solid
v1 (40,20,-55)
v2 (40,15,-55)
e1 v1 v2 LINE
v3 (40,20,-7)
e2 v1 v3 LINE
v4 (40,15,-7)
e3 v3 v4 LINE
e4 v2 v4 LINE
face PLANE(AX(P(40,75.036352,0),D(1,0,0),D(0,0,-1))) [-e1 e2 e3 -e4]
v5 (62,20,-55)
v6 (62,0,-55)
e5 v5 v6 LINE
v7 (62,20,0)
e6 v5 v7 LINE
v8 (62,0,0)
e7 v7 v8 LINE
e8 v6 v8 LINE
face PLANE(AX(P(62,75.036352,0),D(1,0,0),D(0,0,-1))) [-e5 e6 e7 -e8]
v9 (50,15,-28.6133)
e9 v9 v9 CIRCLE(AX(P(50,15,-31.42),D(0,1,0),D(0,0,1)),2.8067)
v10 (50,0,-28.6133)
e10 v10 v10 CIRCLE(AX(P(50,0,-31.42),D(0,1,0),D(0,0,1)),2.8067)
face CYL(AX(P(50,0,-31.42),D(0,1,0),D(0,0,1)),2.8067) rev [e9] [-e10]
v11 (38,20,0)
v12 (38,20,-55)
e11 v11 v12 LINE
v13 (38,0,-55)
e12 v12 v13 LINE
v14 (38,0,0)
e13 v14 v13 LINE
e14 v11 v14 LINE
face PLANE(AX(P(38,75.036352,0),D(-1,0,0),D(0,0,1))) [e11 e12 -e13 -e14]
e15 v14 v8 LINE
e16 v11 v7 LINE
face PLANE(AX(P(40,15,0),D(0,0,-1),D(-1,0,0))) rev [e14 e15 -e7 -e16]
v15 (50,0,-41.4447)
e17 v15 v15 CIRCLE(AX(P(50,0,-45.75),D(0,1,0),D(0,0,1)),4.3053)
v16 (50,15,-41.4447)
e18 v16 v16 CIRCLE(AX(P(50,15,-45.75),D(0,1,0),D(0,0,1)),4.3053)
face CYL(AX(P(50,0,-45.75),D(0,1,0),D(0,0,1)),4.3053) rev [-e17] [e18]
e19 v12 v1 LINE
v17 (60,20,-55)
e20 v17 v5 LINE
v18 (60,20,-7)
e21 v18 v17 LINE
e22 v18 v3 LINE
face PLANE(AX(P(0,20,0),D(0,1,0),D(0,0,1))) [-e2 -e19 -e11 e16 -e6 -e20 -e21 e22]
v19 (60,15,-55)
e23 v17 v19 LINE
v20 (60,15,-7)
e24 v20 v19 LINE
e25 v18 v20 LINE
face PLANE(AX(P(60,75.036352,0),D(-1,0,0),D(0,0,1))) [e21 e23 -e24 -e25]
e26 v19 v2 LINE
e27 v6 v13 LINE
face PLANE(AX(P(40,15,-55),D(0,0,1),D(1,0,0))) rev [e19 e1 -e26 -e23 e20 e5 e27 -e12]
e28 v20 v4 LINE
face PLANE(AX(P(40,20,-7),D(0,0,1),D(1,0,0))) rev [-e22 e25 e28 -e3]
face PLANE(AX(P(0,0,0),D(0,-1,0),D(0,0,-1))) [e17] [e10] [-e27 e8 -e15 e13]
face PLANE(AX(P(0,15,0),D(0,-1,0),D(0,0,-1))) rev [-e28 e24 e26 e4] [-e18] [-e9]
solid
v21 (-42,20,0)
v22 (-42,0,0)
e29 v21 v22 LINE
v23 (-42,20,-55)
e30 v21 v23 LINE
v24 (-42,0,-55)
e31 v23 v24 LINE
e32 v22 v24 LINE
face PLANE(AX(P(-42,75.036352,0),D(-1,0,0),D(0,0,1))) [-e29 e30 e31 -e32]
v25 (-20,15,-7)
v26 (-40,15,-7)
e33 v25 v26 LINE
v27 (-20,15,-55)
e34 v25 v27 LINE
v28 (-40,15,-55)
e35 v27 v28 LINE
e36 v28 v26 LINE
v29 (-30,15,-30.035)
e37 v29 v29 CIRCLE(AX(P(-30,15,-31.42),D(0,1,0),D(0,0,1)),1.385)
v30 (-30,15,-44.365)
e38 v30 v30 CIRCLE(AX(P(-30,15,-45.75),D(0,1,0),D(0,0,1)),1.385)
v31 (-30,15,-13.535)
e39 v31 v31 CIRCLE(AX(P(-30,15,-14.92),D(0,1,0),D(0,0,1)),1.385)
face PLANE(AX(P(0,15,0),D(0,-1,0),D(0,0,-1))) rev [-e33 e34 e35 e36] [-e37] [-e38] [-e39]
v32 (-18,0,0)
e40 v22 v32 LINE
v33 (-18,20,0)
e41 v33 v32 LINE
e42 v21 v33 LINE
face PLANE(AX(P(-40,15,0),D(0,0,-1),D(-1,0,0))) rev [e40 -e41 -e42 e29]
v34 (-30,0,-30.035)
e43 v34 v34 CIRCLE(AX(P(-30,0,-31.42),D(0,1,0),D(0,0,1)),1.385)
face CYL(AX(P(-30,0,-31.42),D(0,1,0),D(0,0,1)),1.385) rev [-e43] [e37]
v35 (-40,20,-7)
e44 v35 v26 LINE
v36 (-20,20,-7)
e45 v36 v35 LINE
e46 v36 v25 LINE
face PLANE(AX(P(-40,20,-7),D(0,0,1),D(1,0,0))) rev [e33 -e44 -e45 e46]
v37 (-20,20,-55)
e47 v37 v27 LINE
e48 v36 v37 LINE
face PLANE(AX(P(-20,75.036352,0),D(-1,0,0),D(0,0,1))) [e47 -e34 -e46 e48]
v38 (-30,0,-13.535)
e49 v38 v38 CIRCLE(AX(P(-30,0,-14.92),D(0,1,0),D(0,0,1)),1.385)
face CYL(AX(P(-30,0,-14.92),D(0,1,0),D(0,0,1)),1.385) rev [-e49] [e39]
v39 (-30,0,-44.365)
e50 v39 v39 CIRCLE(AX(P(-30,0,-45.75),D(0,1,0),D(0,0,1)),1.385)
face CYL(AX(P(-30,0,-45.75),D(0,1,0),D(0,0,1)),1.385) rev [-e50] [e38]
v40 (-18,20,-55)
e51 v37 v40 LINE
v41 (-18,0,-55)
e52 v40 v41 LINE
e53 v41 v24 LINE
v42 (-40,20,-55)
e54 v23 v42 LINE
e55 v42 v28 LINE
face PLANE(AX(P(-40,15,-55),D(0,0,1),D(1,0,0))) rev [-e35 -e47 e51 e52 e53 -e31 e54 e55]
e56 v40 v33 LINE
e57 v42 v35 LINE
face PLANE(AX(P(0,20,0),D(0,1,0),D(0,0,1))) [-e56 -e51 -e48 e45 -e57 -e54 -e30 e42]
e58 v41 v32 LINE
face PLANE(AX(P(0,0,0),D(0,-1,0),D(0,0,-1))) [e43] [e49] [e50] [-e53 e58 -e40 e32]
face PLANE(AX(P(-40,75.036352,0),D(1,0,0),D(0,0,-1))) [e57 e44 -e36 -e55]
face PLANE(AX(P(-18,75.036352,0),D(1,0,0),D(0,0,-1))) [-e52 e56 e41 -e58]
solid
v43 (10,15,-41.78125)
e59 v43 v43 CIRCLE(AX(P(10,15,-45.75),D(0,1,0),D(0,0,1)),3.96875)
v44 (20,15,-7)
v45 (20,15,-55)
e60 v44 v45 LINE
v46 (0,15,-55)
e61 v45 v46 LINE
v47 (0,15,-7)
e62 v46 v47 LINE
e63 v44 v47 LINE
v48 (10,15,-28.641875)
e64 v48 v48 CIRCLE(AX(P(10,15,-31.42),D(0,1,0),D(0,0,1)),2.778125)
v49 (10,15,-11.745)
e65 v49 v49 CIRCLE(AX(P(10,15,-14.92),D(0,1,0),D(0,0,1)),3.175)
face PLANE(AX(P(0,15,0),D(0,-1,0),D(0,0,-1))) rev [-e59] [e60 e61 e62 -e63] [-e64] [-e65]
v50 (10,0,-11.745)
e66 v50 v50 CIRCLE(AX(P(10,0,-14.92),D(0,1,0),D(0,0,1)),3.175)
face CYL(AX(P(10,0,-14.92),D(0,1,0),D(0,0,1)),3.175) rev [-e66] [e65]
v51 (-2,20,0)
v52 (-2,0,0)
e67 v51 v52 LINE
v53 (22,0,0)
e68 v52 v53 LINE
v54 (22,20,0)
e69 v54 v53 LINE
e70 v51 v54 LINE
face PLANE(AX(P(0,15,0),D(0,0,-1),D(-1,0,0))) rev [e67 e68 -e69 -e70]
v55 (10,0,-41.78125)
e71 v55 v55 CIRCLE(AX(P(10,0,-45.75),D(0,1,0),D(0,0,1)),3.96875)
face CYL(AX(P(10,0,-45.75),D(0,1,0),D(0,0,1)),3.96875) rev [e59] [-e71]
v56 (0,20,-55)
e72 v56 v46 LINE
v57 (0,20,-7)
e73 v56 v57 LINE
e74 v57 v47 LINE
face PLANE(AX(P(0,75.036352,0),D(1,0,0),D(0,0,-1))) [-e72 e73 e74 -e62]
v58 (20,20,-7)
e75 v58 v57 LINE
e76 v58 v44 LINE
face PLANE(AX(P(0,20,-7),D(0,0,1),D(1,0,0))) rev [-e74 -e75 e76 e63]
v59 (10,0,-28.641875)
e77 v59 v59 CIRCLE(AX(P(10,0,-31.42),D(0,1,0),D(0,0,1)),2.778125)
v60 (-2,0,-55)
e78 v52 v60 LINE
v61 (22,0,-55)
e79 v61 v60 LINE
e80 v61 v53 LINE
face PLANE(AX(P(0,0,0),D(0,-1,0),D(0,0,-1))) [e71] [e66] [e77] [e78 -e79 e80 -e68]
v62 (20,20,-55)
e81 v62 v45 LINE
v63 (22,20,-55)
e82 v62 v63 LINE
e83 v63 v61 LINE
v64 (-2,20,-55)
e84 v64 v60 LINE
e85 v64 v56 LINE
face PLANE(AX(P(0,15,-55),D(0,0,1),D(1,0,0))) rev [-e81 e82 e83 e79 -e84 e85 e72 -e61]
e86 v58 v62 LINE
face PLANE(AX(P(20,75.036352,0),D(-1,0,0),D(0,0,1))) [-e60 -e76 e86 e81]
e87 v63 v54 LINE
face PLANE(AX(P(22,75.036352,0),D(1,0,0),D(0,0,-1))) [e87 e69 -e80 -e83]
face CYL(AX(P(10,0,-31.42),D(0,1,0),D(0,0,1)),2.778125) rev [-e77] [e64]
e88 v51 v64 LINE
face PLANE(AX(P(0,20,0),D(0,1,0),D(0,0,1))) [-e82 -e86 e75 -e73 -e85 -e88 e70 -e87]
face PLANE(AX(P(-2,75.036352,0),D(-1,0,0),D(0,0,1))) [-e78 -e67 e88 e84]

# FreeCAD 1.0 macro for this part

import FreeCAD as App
import Part
import Sketcher


def add_polygon(sketch, points):
    """Adds a closed chain of lines whose ends are joined by coincident constraints."""
    first, n = sketch.GeometryCount, len(points)
    for a, b in zip(points, points[1:] + points[:1]):
        sketch.addGeometry(Part.LineSegment(App.Vector(*a, 0), App.Vector(*b, 0)), False)
    for i in range(n):
        sketch.addConstraint(Sketcher.Constraint("Coincident", first + i, 2, first + (i + 1) % n, 1))

doc = App.newDocument("Part")
params = doc.addObject("Spreadsheet::Sheet", "Params")
for row, (alias, value) in enumerate([
    ("sketch1_width", "20 mm"),
    ("sketch1_height", "55 mm"),
    ("pad1_length", "15 mm"),
    ("sketch2_width", "20 mm"),
    ("sketch2_height", "55 mm"),
    ("pad2_length", "15 mm"),
    ("sketch3_width", "20 mm"),
    ("sketch3_height", "55 mm"),
    ("pad3_length", "15 mm"),
    ("sketch4_diameter", "2.77 mm"),
    ("sketch4_diameter2", "6.35 mm"),
    ("pad4_length", "83.764727 mm"),
    ("sketch5_width", "20 mm"),
    ("sketch5_height", "7 mm"),
    ("pad5_length", "5 mm"),
    ("sketch6_width", "2 mm"),
    ("sketch6_height", "55 mm"),
    ("pad6_length", "20 mm"),
], start=1):
    params.set(f"A{row}", alias)
    params.set(f"B{row}", "=" + value)
    params.setAlias(f"B{row}", alias)

body = doc.addObject("PartDesign::Body", "Body")

# Sketch on XZ plane
sketch1 = body.newObject("Sketcher::SketchObject", "Sketch")
sketch1.AttachmentSupport = (doc.getObject("XZ_Plane"), [""])
sketch1.MapMode = "FlatFace"
add_polygon(sketch1, [(0, -55), (0, 0), (20, 0), (20, -55)])  # lines 0-3
sketch1.addConstraint(Sketcher.Constraint("Vertical", 0))
sketch1.addConstraint(Sketcher.Constraint("Horizontal", 1))
sketch1.addConstraint(Sketcher.Constraint("Vertical", 2))
sketch1.addConstraint(Sketcher.Constraint("Horizontal", 3))
sketch1.addConstraint(Sketcher.Constraint("Coincident", 0, 2, -1, 1))
sketch1.addConstraint(Sketcher.Constraint("DistanceX", 1, 1, 1, 2, 20.0))
sketch1.addConstraint(Sketcher.Constraint("DistanceY", 0, 1, 0, 2, 55.0))
sketch1.setExpression("Constraints[9]", "Params.sketch1_width")
sketch1.setExpression("Constraints[10]", "Params.sketch1_height")
pad1 = body.newObject("PartDesign::Pad", "Pad")
pad1.Profile = sketch1
pad1.setExpression("Length", "Params.pad1_length")
pad1.Reversed = True
body2 = doc.addObject("PartDesign::Body", "Body001")

# Sketch on XZ plane
sketch2 = body2.newObject("Sketcher::SketchObject", "Sketch001")
sketch2.AttachmentSupport = (doc.getObject("XZ_Plane001"), [""])
sketch2.MapMode = "FlatFace"
add_polygon(sketch2, [(40, -55), (40, 0), (60, 0), (60, -55)])  # lines 0-3
sketch2.addConstraint(Sketcher.Constraint("Vertical", 0))
sketch2.addConstraint(Sketcher.Constraint("Horizontal", 1))
sketch2.addConstraint(Sketcher.Constraint("Vertical", 2))
sketch2.addConstraint(Sketcher.Constraint("Horizontal", 3))
sketch2.addConstraint(Sketcher.Constraint("PointOnObject", 0, 2, -1))
sketch2.addConstraint(Sketcher.Constraint("DistanceX", 1, 1, 1, 2, 20.0))
sketch2.addConstraint(Sketcher.Constraint("DistanceY", 0, 1, 0, 2, 55.0))
sketch2.addConstraint(Sketcher.Constraint("DistanceX", -1, 1, 0, 2, 40.0))
sketch2.setExpression("Constraints[9]", "Params.sketch2_width")
sketch2.setExpression("Constraints[10]", "Params.sketch2_height")
pad2 = body2.newObject("PartDesign::Pad", "Pad001")
pad2.Profile = sketch2
pad2.setExpression("Length", "Params.pad2_length")
pad2.Reversed = True
body3 = doc.addObject("PartDesign::Body", "Body002")

# Sketch on XZ plane
sketch3 = body3.newObject("Sketcher::SketchObject", "Sketch002")
sketch3.AttachmentSupport = (doc.getObject("XZ_Plane002"), [""])
sketch3.MapMode = "FlatFace"
add_polygon(sketch3, [(-40, -55), (-40, 0), (-20, 0), (-20, -55)])  # lines 0-3
sketch3.addConstraint(Sketcher.Constraint("Vertical", 0))
sketch3.addConstraint(Sketcher.Constraint("Horizontal", 1))
sketch3.addConstraint(Sketcher.Constraint("Vertical", 2))
sketch3.addConstraint(Sketcher.Constraint("Horizontal", 3))
sketch3.addConstraint(Sketcher.Constraint("PointOnObject", 0, 2, -1))
sketch3.addConstraint(Sketcher.Constraint("DistanceX", 1, 1, 1, 2, 20.0))
sketch3.addConstraint(Sketcher.Constraint("DistanceY", 0, 1, 0, 2, 55.0))
sketch3.addConstraint(Sketcher.Constraint("DistanceX", 0, 2, -1, 1, 40.0))
sketch3.setExpression("Constraints[9]", "Params.sketch3_width")
sketch3.setExpression("Constraints[10]", "Params.sketch3_height")
pad3 = body3.newObject("PartDesign::Pad", "Pad002")
pad3.Profile = sketch3
pad3.setExpression("Length", "Params.pad3_length")
pad3.Reversed = True
body4 = doc.addObject("PartDesign::Body", "Body003")
body4.AllowCompound = True

# Sketch on XZ plane
sketch4 = body4.newObject("Sketcher::SketchObject", "Sketch003")
sketch4.AttachmentSupport = (doc.getObject("XZ_Plane003"), [""])
sketch4.MapMode = "FlatFace"
sketch4.AttachmentOffset = App.Placement(App.Vector(0, 0, -15), App.Rotation())
sketch4.addGeometry(Part.Circle(App.Vector(-30, -45.75, 0), App.Vector(0, 0, 1), 1.385), False)
sketch4.addGeometry(Part.Circle(App.Vector(-30, -31.42, 0), App.Vector(0, 0, 1), 1.385), False)
sketch4.addGeometry(Part.Circle(App.Vector(-30, -14.92, 0), App.Vector(0, 0, 1), 1.385), False)
sketch4.addGeometry(Part.Circle(App.Vector(50, -45.75, 0), App.Vector(0, 0, 1), 4.3053), False)
sketch4.addGeometry(Part.Circle(App.Vector(50, -31.42, 0), App.Vector(0, 0, 1), 2.8067), False)
sketch4.addGeometry(Part.Circle(App.Vector(10, -14.92, 0), App.Vector(0, 0, 1), 3.175), False)
sketch4.addGeometry(Part.Circle(App.Vector(10, -31.42, 0), App.Vector(0, 0, 1), 2.778125), False)
sketch4.addGeometry(Part.Circle(App.Vector(10, -45.75, 0), App.Vector(0, 0, 1), 3.96875), False)
sketch4.addConstraint(Sketcher.Constraint("Equal", 0, 1))
sketch4.addConstraint(Sketcher.Constraint("Equal", 1, 2))
sketch4.addConstraint(Sketcher.Constraint("Horizontal", 0, 3, 3, 3))
sketch4.addConstraint(Sketcher.Constraint("Horizontal", 1, 3, 4, 3))
sketch4.addConstraint(Sketcher.Constraint("Horizontal", 2, 3, 5, 3))
sketch4.addConstraint(Sketcher.Constraint("Horizontal", 4, 3, 6, 3))
sketch4.addConstraint(Sketcher.Constraint("Horizontal", 3, 3, 7, 3))
sketch4.addConstraint(Sketcher.Constraint("Vertical", 0, 3, 1, 3))
sketch4.addConstraint(Sketcher.Constraint("Vertical", 1, 3, 2, 3))
sketch4.addConstraint(Sketcher.Constraint("Vertical", 3, 3, 4, 3))
sketch4.addConstraint(Sketcher.Constraint("Vertical", 5, 3, 6, 3))
sketch4.addConstraint(Sketcher.Constraint("Vertical", 6, 3, 7, 3))
sketch4.addConstraint(Sketcher.Constraint("Diameter", 0, 2.77))
sketch4.addConstraint(Sketcher.Constraint("Diameter", 5, 6.35))
sketch4.addConstraint(Sketcher.Constraint("DistanceX", 0, 3, -1, 1, 30.0))
sketch4.addConstraint(Sketcher.Constraint("DistanceX", -1, 1, 3, 3, 50.0))
sketch4.addConstraint(Sketcher.Constraint("DistanceX", -1, 1, 5, 3, 10.0))
sketch4.addConstraint(Sketcher.Constraint("Diameter", 3, 8.6106))
sketch4.addConstraint(Sketcher.Constraint("Diameter", 4, 5.6134))
sketch4.addConstraint(Sketcher.Constraint("Diameter", 7, 7.9375))
sketch4.addConstraint(Sketcher.Constraint("DistanceY", 1, 3, 2, 3, 16.5))
sketch4.addConstraint(Sketcher.Constraint("Diameter", 6, 5.55625))
sketch4.addConstraint(Sketcher.Constraint("DistanceY", 0, 3, -1, 1, 45.75))
sketch4.addConstraint(Sketcher.Constraint("DistanceY", 1, 3, -1, 1, 31.42))
sketch4.setExpression("Constraints[12]", "Params.sketch4_diameter")
sketch4.setExpression("Constraints[13]", "Params.sketch4_diameter2")
pad4 = body4.newObject("PartDesign::Pad", "Pad003")
pad4.Profile = sketch4
pad4.setExpression("Length", "Params.pad4_length")
doc.recompute()

body5 = doc.addObject("PartDesign::Body", "Body004")
body5.BaseFeature = body4
boolean = body.newObject("PartDesign::Boolean", "Boolean")
boolean.Type = "Cut"
boolean.addObjects([body5])
doc.recompute()

body6 = doc.addObject("PartDesign::Body", "Body005")
body6.BaseFeature = body4
boolean2 = body2.newObject("PartDesign::Boolean", "Boolean001")
boolean2.Type = "Cut"
boolean2.addObjects([body6])
doc.recompute()

boolean3 = body3.newObject("PartDesign::Boolean", "Boolean002")
boolean3.Type = "Cut"
boolean3.addObjects([body4])
body.AllowCompound = True
doc.recompute()

boolean4 = body.newObject("PartDesign::Boolean", "Boolean003")
boolean4.Type = "Fuse"
boolean4.addObjects([body2])
doc.recompute()

boolean5 = body.newObject("PartDesign::Boolean", "Boolean004")
boolean5.Type = "Fuse"
boolean5.addObjects([body3])

# Sketch on XZ plane
sketch5 = body.newObject("Sketcher::SketchObject", "Sketch004")
sketch5.AttachmentSupport = (doc.getObject("XZ_Plane"), [""])
sketch5.MapMode = "FlatFace"
sketch5.AttachmentOffset = App.Placement(App.Vector(0, 0, -15), App.Rotation())
add_polygon(sketch5, [(-40, -7), (-40, 0), (-20, 0), (-20, -7)])  # lines 0-3
add_polygon(sketch5, [(0, -7), (0, 0), (20, 0), (20, -7)])  # lines 4-7
add_polygon(sketch5, [(40, -7), (40, 0), (60, 0), (60, -7)])  # lines 8-11
sketch5.addConstraint(Sketcher.Constraint("Vertical", 0))
sketch5.addConstraint(Sketcher.Constraint("Horizontal", 1))
sketch5.addConstraint(Sketcher.Constraint("Vertical", 2))
sketch5.addConstraint(Sketcher.Constraint("Horizontal", 3))
sketch5.addConstraint(Sketcher.Constraint("Vertical", 4))
sketch5.addConstraint(Sketcher.Constraint("Horizontal", 5))
sketch5.addConstraint(Sketcher.Constraint("Vertical", 6))
sketch5.addConstraint(Sketcher.Constraint("Horizontal", 7))
sketch5.addConstraint(Sketcher.Constraint("Vertical", 8))
sketch5.addConstraint(Sketcher.Constraint("Horizontal", 9))
sketch5.addConstraint(Sketcher.Constraint("Vertical", 10))
sketch5.addConstraint(Sketcher.Constraint("Horizontal", 11))
sketch5.addConstraint(Sketcher.Constraint("Coincident", 4, 2, -1, 1))
sketch5.addConstraint(Sketcher.Constraint("Symmetric", 1, 2, 5, 2, -1, 1))
sketch5.addConstraint(Sketcher.Constraint("Symmetric", 0, 2, 8, 2, -1, 1))
sketch5.addConstraint(Sketcher.Constraint("Horizontal", 3, 2, 6, 2))
sketch5.addConstraint(Sketcher.Constraint("Horizontal", 7, 2, 10, 2))
sketch5.addConstraint(Sketcher.Constraint("Equal", 3, 5))
sketch5.addConstraint(Sketcher.Constraint("Equal", 7, 9))
sketch5.addConstraint(Sketcher.Constraint("DistanceX", 1, 1, 1, 2, 20.0))
sketch5.addConstraint(Sketcher.Constraint("DistanceY", 0, 1, 0, 2, 7.0))
sketch5.setExpression("Constraints[31]", "Params.sketch5_width")
sketch5.setExpression("Constraints[32]", "Params.sketch5_height")
pad5 = body.newObject("PartDesign::Pad", "Pad004")
pad5.Profile = sketch5
pad5.setExpression("Length", "Params.pad5_length")
pad5.Reversed = True

# Sketch on XZ plane
sketch6 = body.newObject("Sketcher::SketchObject", "Sketch005")
sketch6.AttachmentSupport = (doc.getObject("XZ_Plane"), [""])
sketch6.MapMode = "FlatFace"
add_polygon(sketch6, [(-42, 0), (-42, -55), (-40, -55), (-40, 0)])  # lines 0-3
add_polygon(sketch6, [(-20, 0), (-20, -55), (-18, -55), (-18, 0)])  # lines 4-7
add_polygon(sketch6, [(-2, 0), (-2, -55), (0, -55), (0, 0)])  # lines 8-11
add_polygon(sketch6, [(20, 0), (20, -55), (22, -55), (22, 0)])  # lines 12-15
add_polygon(sketch6, [(38, 0), (38, -55), (40, -55), (40, 0)])  # lines 16-19
add_polygon(sketch6, [(60, 0), (60, -55), (62, -55), (62, 0)])  # lines 20-23
sketch6.addConstraint(Sketcher.Constraint("Vertical", 0))
sketch6.addConstraint(Sketcher.Constraint("Horizontal", 1))
sketch6.addConstraint(Sketcher.Constraint("Vertical", 2))
sketch6.addConstraint(Sketcher.Constraint("Horizontal", 3))
sketch6.addConstraint(Sketcher.Constraint("Vertical", 4))
sketch6.addConstraint(Sketcher.Constraint("Horizontal", 5))
sketch6.addConstraint(Sketcher.Constraint("Vertical", 6))
sketch6.addConstraint(Sketcher.Constraint("Horizontal", 7))
sketch6.addConstraint(Sketcher.Constraint("Vertical", 8))
sketch6.addConstraint(Sketcher.Constraint("Horizontal", 9))
sketch6.addConstraint(Sketcher.Constraint("Vertical", 10))
sketch6.addConstraint(Sketcher.Constraint("Horizontal", 11))
sketch6.addConstraint(Sketcher.Constraint("Vertical", 12))
sketch6.addConstraint(Sketcher.Constraint("Horizontal", 13))
sketch6.addConstraint(Sketcher.Constraint("Vertical", 14))
sketch6.addConstraint(Sketcher.Constraint("Horizontal", 15))
sketch6.addConstraint(Sketcher.Constraint("Vertical", 16))
sketch6.addConstraint(Sketcher.Constraint("Horizontal", 17))
sketch6.addConstraint(Sketcher.Constraint("Vertical", 18))
sketch6.addConstraint(Sketcher.Constraint("Horizontal", 19))
sketch6.addConstraint(Sketcher.Constraint("Vertical", 20))
sketch6.addConstraint(Sketcher.Constraint("Horizontal", 21))
sketch6.addConstraint(Sketcher.Constraint("Vertical", 22))
sketch6.addConstraint(Sketcher.Constraint("Horizontal", 23))
sketch6.addConstraint(Sketcher.Constraint("Coincident", 10, 2, -1, 1))
sketch6.addConstraint(Sketcher.Constraint("Symmetric", 7, 2, 15, 2, -1, 1))
sketch6.addConstraint(Sketcher.Constraint("Symmetric", 2, 2, 18, 2, -1, 1))
sketch6.addConstraint(Sketcher.Constraint("PointOnObject", 2, 2, -1))
sketch6.addConstraint(Sketcher.Constraint("PointOnObject", 6, 2, -1))
sketch6.addConstraint(Sketcher.Constraint("PointOnObject", 22, 2, -1))
sketch6.addConstraint(Sketcher.Constraint("Horizontal", 1, 2, 4, 2))
sketch6.addConstraint(Sketcher.Constraint("Horizontal", 5, 2, 8, 2))
sketch6.addConstraint(Sketcher.Constraint("Horizontal", 9, 2, 12, 2))
sketch6.addConstraint(Sketcher.Constraint("Horizontal", 13, 2, 16, 2))
sketch6.addConstraint(Sketcher.Constraint("Horizontal", 17, 2, 20, 2))
sketch6.addConstraint(Sketcher.Constraint("Equal", 3, 5))
sketch6.addConstraint(Sketcher.Constraint("Equal", 7, 9))
sketch6.addConstraint(Sketcher.Constraint("Equal", 11, 13))
sketch6.addConstraint(Sketcher.Constraint("Equal", 15, 17))
sketch6.addConstraint(Sketcher.Constraint("Equal", 19, 21))
sketch6.addConstraint(Sketcher.Constraint("DistanceX", 1, 1, 1, 2, 2.0))
sketch6.addConstraint(Sketcher.Constraint("DistanceY", 0, 2, 0, 1, 55.0))
sketch6.addConstraint(Sketcher.Constraint("DistanceX", 0, 2, -1, 1, 42.0))
sketch6.addConstraint(Sketcher.Constraint("DistanceX", 4, 2, -1, 1, 20.0))
sketch6.addConstraint(Sketcher.Constraint("DistanceX", -1, 1, 20, 2, 60.0))
sketch6.setExpression("Constraints[64]", "Params.sketch6_width")
sketch6.setExpression("Constraints[65]", "Params.sketch6_height")
pad6 = body.newObject("PartDesign::Pad", "Pad005")
pad6.Profile = sketch6
pad6.setExpression("Length", "Params.pad6_length")
pad6.Reversed = True

doc.recompute()
